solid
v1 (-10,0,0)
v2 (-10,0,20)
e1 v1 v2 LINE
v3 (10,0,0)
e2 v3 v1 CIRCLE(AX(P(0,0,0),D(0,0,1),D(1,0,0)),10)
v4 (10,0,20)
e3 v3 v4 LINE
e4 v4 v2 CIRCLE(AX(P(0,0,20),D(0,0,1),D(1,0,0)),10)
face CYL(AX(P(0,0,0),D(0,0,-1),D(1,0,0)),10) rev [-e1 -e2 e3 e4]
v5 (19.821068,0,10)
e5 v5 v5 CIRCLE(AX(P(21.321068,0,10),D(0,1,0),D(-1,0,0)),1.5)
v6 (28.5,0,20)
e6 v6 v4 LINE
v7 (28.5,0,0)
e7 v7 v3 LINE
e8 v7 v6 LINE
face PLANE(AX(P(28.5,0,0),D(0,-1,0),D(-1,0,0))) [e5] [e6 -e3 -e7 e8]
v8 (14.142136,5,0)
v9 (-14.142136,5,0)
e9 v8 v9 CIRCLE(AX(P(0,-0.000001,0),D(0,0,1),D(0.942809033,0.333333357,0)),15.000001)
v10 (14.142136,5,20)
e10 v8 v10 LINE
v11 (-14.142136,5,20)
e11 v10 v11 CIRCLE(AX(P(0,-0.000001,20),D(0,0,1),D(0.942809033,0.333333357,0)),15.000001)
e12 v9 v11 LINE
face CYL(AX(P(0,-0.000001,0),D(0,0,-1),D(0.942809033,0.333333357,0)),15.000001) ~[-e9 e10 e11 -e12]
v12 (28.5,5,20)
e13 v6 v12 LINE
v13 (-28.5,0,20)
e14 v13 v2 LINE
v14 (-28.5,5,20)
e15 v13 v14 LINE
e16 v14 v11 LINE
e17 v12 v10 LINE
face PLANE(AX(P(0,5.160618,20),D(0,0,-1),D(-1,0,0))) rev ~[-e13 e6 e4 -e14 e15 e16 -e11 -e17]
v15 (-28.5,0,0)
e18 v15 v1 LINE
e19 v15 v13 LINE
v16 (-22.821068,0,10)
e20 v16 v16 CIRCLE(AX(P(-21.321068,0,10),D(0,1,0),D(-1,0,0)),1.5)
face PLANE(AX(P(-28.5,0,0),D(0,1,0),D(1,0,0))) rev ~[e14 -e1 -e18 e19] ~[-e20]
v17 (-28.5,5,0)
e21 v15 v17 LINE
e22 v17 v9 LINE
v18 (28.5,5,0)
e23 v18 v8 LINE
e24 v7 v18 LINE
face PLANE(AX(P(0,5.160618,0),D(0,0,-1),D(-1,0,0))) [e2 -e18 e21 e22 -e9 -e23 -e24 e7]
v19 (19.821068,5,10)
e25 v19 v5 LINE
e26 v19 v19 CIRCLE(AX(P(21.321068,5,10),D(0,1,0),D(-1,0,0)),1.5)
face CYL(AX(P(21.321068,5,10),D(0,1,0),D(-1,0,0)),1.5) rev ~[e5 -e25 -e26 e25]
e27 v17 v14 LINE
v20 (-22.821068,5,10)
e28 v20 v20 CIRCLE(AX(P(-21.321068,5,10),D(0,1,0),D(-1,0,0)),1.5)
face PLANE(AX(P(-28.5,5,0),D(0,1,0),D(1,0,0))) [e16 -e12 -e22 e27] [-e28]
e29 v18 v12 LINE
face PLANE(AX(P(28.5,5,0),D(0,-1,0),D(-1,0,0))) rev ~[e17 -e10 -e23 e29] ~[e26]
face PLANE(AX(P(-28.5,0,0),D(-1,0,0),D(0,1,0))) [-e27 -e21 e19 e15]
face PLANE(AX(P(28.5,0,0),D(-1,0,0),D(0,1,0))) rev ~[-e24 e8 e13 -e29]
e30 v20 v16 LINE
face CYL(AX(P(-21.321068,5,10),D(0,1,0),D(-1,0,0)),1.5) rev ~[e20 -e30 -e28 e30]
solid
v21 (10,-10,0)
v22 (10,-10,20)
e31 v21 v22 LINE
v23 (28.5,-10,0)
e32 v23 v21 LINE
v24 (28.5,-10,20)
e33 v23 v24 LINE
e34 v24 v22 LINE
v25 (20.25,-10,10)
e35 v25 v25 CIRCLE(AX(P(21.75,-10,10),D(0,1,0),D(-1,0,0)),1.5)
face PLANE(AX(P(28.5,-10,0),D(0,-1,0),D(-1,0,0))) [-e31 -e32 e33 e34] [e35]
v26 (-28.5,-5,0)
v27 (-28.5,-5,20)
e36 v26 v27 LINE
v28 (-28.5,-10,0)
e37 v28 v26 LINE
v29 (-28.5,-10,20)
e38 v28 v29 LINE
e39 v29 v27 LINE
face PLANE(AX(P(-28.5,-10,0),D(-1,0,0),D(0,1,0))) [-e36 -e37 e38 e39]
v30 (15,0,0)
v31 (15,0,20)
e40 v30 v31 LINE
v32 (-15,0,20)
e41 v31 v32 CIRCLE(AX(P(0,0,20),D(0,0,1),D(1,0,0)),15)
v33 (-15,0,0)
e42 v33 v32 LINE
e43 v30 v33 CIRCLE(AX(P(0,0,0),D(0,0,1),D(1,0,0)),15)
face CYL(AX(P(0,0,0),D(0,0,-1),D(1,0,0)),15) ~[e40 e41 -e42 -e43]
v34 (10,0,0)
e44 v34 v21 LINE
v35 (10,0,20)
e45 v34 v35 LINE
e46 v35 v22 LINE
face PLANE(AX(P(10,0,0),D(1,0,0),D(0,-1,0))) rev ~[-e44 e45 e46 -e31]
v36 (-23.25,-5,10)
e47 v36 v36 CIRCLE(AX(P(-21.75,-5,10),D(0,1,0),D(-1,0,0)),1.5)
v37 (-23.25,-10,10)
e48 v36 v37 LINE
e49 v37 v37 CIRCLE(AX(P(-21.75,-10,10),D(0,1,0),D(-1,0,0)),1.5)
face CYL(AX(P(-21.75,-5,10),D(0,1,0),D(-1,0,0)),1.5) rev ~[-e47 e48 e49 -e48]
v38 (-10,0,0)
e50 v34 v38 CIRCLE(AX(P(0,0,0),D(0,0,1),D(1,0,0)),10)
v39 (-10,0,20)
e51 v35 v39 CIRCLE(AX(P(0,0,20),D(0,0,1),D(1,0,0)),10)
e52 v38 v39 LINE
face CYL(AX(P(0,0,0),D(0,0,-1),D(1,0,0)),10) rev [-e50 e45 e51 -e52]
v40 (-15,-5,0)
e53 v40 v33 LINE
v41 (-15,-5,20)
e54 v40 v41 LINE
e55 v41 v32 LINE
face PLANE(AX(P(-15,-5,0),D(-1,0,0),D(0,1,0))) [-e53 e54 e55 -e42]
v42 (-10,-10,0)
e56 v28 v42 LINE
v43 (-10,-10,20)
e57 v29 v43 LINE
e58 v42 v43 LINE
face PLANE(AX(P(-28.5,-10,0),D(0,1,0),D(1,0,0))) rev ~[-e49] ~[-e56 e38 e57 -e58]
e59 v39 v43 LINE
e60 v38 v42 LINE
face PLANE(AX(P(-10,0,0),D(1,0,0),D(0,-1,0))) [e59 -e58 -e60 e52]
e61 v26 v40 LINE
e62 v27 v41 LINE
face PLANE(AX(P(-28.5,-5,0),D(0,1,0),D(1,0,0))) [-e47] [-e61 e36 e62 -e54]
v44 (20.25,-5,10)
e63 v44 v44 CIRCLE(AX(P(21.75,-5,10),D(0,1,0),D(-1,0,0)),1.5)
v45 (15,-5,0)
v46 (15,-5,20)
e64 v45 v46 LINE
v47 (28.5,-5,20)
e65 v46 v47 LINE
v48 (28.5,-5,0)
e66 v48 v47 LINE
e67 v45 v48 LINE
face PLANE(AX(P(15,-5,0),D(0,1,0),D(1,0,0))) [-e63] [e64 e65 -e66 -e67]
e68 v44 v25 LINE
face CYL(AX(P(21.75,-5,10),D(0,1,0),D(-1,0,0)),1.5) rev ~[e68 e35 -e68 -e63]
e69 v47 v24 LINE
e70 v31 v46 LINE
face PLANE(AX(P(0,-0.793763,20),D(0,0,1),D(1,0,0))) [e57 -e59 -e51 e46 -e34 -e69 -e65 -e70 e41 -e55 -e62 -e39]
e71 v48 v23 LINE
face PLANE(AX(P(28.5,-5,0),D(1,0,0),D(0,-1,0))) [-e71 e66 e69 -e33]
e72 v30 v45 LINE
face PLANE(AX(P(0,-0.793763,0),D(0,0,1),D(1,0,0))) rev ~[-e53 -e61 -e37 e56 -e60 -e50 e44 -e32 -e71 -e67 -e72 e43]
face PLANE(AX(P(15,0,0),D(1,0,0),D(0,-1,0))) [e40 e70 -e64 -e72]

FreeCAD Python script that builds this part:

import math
import FreeCAD as App
import Part
import Sketcher
from FreeCAD import Vector

doc = App.newDocument("Part")
body = doc.addObject("PartDesign::Body", "Body")

sketch1 = doc.addObject("Sketcher::SketchObject", "Sketch")
body.addObject(sketch1)
sketch1.AttachmentSupport = (doc.XY_Plane, [""])
sketch1.MapMode = "FlatFace"
sketch1.addGeometry([
    Part.LineSegment(Vector(10, 0, 0), Vector(28, 0, 0)),
    Part.LineSegment(Vector(28, 0, 0), Vector(28, 5, 0)),
    Part.LineSegment(Vector(28, 5, 0), Vector(14, 5, 0)),
    Part.ArcOfCircle(Part.Circle(Vector(0, 0, 0), Vector(0, 0, 1), 15), math.radians(19), math.radians(161)),
    Part.LineSegment(Vector(-14, 5, 0), Vector(-28, 5, 0)),
    Part.LineSegment(Vector(-28, 5, 0), Vector(-28, 0, 0)),
    Part.LineSegment(Vector(-28, 0, 0), Vector(-10, 0, 0)),
    Part.ArcOfCircle(Part.Circle(Vector(0, 0, 0), Vector(0, 0, 1), 10), math.radians(0), math.radians(180)),
], False)
sketch1.addConstraint([
    Sketcher.Constraint("Coincident", 0, 2, 1, 1),
    Sketcher.Constraint("Coincident", 1, 2, 2, 1),
    Sketcher.Constraint("Coincident", 2, 2, 3, 1),
    Sketcher.Constraint("Coincident", 3, 2, 4, 1),
    Sketcher.Constraint("Coincident", 4, 2, 5, 1),
    Sketcher.Constraint("Coincident", 5, 2, 6, 1),
    Sketcher.Constraint("Coincident", 6, 2, 7, 2),
    Sketcher.Constraint("Coincident", 7, 1, 0, 1),
    Sketcher.Constraint("Horizontal", 0),
    Sketcher.Constraint("Vertical", 1),
    Sketcher.Constraint("Horizontal", 2),
    Sketcher.Constraint("Horizontal", 4),
    Sketcher.Constraint("Vertical", 5),
    Sketcher.Constraint("Horizontal", 6),
    Sketcher.Constraint("Coincident", 3, 3, -1, 1),
    Sketcher.Constraint("Coincident", 7, 3, -1, 1),
    Sketcher.Constraint("Symmetric", 0, 2, 5, 2, -1, 1),
    Sketcher.Constraint("PointOnObject", 0, 2, -1),
    Sketcher.Constraint("Horizontal", 2, 2, 3, 2),
    Sketcher.Constraint("Radius", 3, 15.000001),
    Sketcher.Constraint("Radius", 7, 10.0),
    Sketcher.Constraint("DistanceY", 1, 1, 1, 2, 5.0),
    Sketcher.Constraint("DistanceX", 0, 1, 0, 2, 18.5),
])
pad1 = doc.addObject("PartDesign::Pad", "Pad")
body.addObject(pad1)
pad1.Profile = sketch1
pad1.Length = 20

sketch2 = doc.addObject("Sketcher::SketchObject", "Sketch001")
body.addObject(sketch2)
sketch2.AttachmentSupport = (doc.XZ_Plane, [""])
sketch2.MapMode = "FlatFace"
sketch2.AttachmentOffset = App.Placement(Vector(0, 0, -5), App.Rotation())
sketch2.addGeometry([
    Part.Circle(Vector(21.3, 10, 0), Vector(0, 0, 1), 1.5),
    Part.Circle(Vector(-21.3, 10, 0), Vector(0, 0, 1), 1.5),
], False)
sketch2.addConstraint([
    Sketcher.Constraint("Equal", 0, 1),
    Sketcher.Constraint("Symmetric", 0, 3, 1, 3, -2),
    Sketcher.Constraint("Diameter", 0, 3.0),
    Sketcher.Constraint("DistanceY", -1, 1, 0, 3, 10.0),
    Sketcher.Constraint("DistanceX", -1, 1, 0, 3, 21.321068),
])
pocket1 = doc.addObject("PartDesign::Pocket", "Pocket")
body.addObject(pocket1)
pocket1.Profile = sketch2
pocket1.Type = "ThroughAll"
pocket1.Reversed = True
body2 = doc.addObject("PartDesign::Body", "Body001")

sketch3 = doc.addObject("Sketcher::SketchObject", "Sketch002")
body2.addObject(sketch3)
sketch3.AttachmentSupport = (doc.getObject("XY_Plane001"), [""])
sketch3.MapMode = "FlatFace"
sketch3.addGeometry([
    Part.ArcOfCircle(Part.Circle(Vector(0, 0, 0), Vector(0, 0, 1), 15), math.radians(0), math.radians(180)),
    Part.LineSegment(Vector(-15, 0, 0), Vector(-15, -5, 0)),
    Part.LineSegment(Vector(-15, -5, 0), Vector(-28, -5, 0)),
    Part.LineSegment(Vector(-28, -5, 0), Vector(-28, -10, 0)),
    Part.LineSegment(Vector(-28, -10, 0), Vector(-10, -10, 0)),
    Part.LineSegment(Vector(-10, -10, 0), Vector(-10, 0, 0)),
    Part.ArcOfCircle(Part.Circle(Vector(0, 0, 0), Vector(0, 0, 1), 10), math.radians(0), math.radians(180)),
    Part.LineSegment(Vector(10, 0, 0), Vector(10, -10, 0)),
    Part.LineSegment(Vector(10, -10, 0), Vector(28, -10, 0)),
    Part.LineSegment(Vector(28, -10, 0), Vector(28, -5, 0)),
    Part.LineSegment(Vector(28, -5, 0), Vector(15, -5, 0)),
    Part.LineSegment(Vector(15, -5, 0), Vector(15, 0, 0)),
], False)
sketch3.addConstraint([
    Sketcher.Constraint("Tangent", 0, 2, 1, 1),
    Sketcher.Constraint("Coincident", 1, 2, 2, 1),
    Sketcher.Constraint("Coincident", 2, 2, 3, 1),
    Sketcher.Constraint("Coincident", 3, 2, 4, 1),
    Sketcher.Constraint("Coincident", 4, 2, 5, 1),
    Sketcher.Constraint("Tangent", 5, 2, 6, 2),
    Sketcher.Constraint("Tangent", 6, 1, 7, 1),
    Sketcher.Constraint("Coincident", 7, 2, 8, 1),
    Sketcher.Constraint("Coincident", 8, 2, 9, 1),
    Sketcher.Constraint("Coincident", 9, 2, 10, 1),
    Sketcher.Constraint("Coincident", 10, 2, 11, 1),
    Sketcher.Constraint("Tangent", 11, 2, 0, 1),
    Sketcher.Constraint("Vertical", 1),
    Sketcher.Constraint("Horizontal", 2),
    Sketcher.Constraint("Vertical", 3),
    Sketcher.Constraint("Horizontal", 4),
    Sketcher.Constraint("Vertical", 5),
    Sketcher.Constraint("Vertical", 7),
    Sketcher.Constraint("Horizontal", 8),
    Sketcher.Constraint("Vertical", 9),
    Sketcher.Constraint("Horizontal", 10),
    Sketcher.Constraint("Vertical", 11),
    Sketcher.Constraint("Coincident", 0, 3, -1, 1),
    Sketcher.Constraint("Coincident", 6, 3, -1, 1),
    Sketcher.Constraint("Symmetric", 3, 2, 8, 2, -2),
    Sketcher.Constraint("Horizontal", 2, 2, 9, 2),
    Sketcher.Constraint("Equal", 1, 3),
    Sketcher.Constraint("Radius", 0, 15.0),
    Sketcher.Constraint("Radius", 6, 10.0),
    Sketcher.Constraint("DistanceY", 1, 2, 1, 1, 5.0),
    Sketcher.Constraint("DistanceX", 2, 2, 2, 1, 13.5),
])
pad2 = doc.addObject("PartDesign::Pad", "Pad001")
body2.addObject(pad2)
pad2.Profile = sketch3
pad2.Length = 20

sketch4 = doc.addObject("Sketcher::SketchObject", "Sketch003")
body2.addObject(sketch4)
sketch4.AttachmentSupport = (doc.getObject("XZ_Plane001"), [""])
sketch4.MapMode = "FlatFace"
sketch4.AttachmentOffset = App.Placement(Vector(0, 0, 5), App.Rotation())
sketch4.addGeometry([
    Part.Circle(Vector(21.8, 10, 0), Vector(0, 0, 1), 1.5),
    Part.Circle(Vector(-21.8, 10, 0), Vector(0, 0, 1), 1.5),
], False)
sketch4.addConstraint([
    Sketcher.Constraint("Equal", 0, 1),
    Sketcher.Constraint("Symmetric", 0, 3, 1, 3, -2),
    Sketcher.Constraint("Diameter", 0, 3.0),
    Sketcher.Constraint("DistanceY", -1, 1, 0, 3, 10.0),
    Sketcher.Constraint("DistanceX", 1, 3, 0, 3, 43.5),
])
pocket2 = doc.addObject("PartDesign::Pocket", "Pocket001")
body2.addObject(pocket2)
pocket2.Profile = sketch4
pocket2.Type = "ThroughAll"
pocket2.Reversed = True

doc.recompute()
